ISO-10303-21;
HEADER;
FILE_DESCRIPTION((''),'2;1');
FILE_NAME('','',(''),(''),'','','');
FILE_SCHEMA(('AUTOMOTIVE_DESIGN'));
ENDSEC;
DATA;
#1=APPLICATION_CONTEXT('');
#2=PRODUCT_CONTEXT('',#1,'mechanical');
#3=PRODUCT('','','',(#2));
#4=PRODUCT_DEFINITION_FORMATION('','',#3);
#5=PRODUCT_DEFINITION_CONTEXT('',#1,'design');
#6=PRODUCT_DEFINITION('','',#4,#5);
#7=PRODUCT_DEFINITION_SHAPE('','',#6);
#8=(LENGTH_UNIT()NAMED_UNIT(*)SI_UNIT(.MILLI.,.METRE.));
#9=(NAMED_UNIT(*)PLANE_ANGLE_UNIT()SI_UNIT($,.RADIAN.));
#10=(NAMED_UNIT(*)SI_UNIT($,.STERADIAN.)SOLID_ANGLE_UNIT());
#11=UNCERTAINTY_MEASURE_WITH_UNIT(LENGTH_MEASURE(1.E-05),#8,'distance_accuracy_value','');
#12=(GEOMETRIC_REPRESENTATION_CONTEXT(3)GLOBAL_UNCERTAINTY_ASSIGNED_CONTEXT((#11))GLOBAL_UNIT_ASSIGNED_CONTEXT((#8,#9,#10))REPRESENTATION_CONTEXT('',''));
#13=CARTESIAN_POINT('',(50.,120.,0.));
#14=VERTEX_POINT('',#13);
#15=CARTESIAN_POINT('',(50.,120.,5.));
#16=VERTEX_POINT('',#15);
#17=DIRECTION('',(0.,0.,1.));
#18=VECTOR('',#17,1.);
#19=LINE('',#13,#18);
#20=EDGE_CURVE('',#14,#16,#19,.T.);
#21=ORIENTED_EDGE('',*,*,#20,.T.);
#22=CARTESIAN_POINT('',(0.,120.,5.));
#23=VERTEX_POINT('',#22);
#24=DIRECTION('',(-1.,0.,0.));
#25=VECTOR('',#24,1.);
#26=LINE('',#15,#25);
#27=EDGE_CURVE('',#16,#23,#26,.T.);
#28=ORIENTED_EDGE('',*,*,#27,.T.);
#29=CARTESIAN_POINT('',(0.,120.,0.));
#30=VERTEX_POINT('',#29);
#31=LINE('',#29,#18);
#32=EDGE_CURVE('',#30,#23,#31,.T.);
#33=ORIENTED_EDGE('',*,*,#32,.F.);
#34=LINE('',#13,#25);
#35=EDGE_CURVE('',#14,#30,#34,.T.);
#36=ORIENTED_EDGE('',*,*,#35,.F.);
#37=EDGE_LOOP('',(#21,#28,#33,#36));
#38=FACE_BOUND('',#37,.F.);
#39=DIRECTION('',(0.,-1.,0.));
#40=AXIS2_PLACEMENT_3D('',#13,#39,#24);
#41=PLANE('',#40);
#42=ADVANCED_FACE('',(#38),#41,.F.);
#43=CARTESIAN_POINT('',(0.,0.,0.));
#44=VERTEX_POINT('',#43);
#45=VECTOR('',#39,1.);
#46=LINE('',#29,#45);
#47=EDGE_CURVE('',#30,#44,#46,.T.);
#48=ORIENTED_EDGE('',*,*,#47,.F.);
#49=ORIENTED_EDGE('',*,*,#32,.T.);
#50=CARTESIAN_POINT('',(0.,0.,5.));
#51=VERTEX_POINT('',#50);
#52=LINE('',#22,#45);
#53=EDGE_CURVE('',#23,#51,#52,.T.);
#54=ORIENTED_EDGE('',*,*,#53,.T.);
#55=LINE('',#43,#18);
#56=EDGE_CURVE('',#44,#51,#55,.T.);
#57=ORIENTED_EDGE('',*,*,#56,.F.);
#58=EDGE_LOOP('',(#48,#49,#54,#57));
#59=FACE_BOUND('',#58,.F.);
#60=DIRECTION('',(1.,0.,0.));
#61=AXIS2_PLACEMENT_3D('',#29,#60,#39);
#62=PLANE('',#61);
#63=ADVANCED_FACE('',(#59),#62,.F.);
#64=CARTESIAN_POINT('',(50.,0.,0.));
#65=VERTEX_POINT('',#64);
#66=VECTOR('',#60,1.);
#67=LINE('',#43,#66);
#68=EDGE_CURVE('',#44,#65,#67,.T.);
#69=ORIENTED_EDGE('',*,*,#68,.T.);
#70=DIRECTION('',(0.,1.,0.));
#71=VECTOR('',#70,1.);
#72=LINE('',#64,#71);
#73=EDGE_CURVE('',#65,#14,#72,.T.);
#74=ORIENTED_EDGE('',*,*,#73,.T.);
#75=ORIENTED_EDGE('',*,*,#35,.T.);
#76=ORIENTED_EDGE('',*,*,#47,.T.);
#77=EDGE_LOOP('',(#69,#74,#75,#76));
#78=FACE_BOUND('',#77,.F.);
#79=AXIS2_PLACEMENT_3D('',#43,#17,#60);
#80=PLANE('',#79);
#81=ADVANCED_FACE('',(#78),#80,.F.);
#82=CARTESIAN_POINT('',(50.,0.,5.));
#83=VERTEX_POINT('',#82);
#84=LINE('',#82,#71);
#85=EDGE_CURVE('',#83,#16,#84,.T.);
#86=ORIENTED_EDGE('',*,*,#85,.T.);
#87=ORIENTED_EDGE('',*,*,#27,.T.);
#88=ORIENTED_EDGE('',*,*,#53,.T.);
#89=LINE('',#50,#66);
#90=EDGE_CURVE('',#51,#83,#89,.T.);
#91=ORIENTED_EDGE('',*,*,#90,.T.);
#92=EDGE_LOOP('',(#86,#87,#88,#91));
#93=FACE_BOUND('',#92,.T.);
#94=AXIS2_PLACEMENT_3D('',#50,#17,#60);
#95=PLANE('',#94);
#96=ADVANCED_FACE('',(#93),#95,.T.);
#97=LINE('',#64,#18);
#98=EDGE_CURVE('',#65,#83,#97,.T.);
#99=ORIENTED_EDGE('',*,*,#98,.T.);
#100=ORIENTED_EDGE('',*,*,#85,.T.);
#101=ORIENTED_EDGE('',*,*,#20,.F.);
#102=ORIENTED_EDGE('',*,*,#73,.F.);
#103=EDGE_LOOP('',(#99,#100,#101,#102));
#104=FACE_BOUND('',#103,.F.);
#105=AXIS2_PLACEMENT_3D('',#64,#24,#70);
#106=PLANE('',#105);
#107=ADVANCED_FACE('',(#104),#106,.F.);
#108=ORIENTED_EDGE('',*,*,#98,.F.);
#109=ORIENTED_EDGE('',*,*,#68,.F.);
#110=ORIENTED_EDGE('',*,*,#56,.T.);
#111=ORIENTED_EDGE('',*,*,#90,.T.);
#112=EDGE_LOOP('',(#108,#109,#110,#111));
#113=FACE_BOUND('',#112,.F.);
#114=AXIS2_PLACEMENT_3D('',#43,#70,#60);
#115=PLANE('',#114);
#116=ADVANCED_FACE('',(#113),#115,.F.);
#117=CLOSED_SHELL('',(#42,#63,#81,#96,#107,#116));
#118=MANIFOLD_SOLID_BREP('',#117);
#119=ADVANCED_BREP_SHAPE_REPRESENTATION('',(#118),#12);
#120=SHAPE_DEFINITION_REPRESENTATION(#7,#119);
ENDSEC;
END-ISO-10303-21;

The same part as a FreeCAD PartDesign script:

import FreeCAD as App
import Part
import Sketcher

doc = App.newDocument("Part")
params = doc.addObject("Spreadsheet::Sheet", "Params")
for row, (alias, value) in enumerate([
    ("sketch1_width", "50 mm"),
    ("sketch1_height", "120 mm"),
    ("pad1_length", "5 mm"),
], start=1):
    params.set(f"A{row}", alias)
    params.set(f"B{row}", "=" + value)
    params.setAlias(f"B{row}", alias)

body = doc.addObject("PartDesign::Body", "Body")

sketch1 = body.newObject("Sketcher::SketchObject", "Sketch")
sketch1.AttachmentSupport = (doc.getObject("XY_Plane"), [""])
sketch1.MapMode = "FlatFace"
sketch1.addGeometry([
    Part.LineSegment(App.Vector(0, 120, 0), App.Vector(0, 0, 0)),
    Part.LineSegment(App.Vector(0, 0, 0), App.Vector(50, 0, 0)),
    Part.LineSegment(App.Vector(50, 0, 0), App.Vector(50, 120, 0)),
    Part.LineSegment(App.Vector(50, 120, 0), App.Vector(0, 120, 0)),
], False)
sketch1.addConstraint([
    Sketcher.Constraint("Coincident", 0, 2, 1, 1),
    Sketcher.Constraint("Coincident", 1, 2, 2, 1),
    Sketcher.Constraint("Coincident", 2, 2, 3, 1),
    Sketcher.Constraint("Coincident", 3, 2, 0, 1),
    Sketcher.Constraint("Vertical", 0),
    Sketcher.Constraint("Horizontal", 1),
    Sketcher.Constraint("Vertical", 2),
    Sketcher.Constraint("Horizontal", 3),
    Sketcher.Constraint("Coincident", 0, 2, -1, 1),
    Sketcher.Constraint("DistanceX", 1, 1, 1, 2, 50.0),
    Sketcher.Constraint("DistanceY", 0, 2, 0, 1, 120.0),
])
sketch1.setExpression("Constraints[9]", "Params.sketch1_width")
sketch1.setExpression("Constraints[10]", "Params.sketch1_height")
pad1 = body.newObject("PartDesign::Pad", "Pad")
pad1.Profile = sketch1
pad1.setExpression("Length", "Params.pad1_length")

doc.recompute()
